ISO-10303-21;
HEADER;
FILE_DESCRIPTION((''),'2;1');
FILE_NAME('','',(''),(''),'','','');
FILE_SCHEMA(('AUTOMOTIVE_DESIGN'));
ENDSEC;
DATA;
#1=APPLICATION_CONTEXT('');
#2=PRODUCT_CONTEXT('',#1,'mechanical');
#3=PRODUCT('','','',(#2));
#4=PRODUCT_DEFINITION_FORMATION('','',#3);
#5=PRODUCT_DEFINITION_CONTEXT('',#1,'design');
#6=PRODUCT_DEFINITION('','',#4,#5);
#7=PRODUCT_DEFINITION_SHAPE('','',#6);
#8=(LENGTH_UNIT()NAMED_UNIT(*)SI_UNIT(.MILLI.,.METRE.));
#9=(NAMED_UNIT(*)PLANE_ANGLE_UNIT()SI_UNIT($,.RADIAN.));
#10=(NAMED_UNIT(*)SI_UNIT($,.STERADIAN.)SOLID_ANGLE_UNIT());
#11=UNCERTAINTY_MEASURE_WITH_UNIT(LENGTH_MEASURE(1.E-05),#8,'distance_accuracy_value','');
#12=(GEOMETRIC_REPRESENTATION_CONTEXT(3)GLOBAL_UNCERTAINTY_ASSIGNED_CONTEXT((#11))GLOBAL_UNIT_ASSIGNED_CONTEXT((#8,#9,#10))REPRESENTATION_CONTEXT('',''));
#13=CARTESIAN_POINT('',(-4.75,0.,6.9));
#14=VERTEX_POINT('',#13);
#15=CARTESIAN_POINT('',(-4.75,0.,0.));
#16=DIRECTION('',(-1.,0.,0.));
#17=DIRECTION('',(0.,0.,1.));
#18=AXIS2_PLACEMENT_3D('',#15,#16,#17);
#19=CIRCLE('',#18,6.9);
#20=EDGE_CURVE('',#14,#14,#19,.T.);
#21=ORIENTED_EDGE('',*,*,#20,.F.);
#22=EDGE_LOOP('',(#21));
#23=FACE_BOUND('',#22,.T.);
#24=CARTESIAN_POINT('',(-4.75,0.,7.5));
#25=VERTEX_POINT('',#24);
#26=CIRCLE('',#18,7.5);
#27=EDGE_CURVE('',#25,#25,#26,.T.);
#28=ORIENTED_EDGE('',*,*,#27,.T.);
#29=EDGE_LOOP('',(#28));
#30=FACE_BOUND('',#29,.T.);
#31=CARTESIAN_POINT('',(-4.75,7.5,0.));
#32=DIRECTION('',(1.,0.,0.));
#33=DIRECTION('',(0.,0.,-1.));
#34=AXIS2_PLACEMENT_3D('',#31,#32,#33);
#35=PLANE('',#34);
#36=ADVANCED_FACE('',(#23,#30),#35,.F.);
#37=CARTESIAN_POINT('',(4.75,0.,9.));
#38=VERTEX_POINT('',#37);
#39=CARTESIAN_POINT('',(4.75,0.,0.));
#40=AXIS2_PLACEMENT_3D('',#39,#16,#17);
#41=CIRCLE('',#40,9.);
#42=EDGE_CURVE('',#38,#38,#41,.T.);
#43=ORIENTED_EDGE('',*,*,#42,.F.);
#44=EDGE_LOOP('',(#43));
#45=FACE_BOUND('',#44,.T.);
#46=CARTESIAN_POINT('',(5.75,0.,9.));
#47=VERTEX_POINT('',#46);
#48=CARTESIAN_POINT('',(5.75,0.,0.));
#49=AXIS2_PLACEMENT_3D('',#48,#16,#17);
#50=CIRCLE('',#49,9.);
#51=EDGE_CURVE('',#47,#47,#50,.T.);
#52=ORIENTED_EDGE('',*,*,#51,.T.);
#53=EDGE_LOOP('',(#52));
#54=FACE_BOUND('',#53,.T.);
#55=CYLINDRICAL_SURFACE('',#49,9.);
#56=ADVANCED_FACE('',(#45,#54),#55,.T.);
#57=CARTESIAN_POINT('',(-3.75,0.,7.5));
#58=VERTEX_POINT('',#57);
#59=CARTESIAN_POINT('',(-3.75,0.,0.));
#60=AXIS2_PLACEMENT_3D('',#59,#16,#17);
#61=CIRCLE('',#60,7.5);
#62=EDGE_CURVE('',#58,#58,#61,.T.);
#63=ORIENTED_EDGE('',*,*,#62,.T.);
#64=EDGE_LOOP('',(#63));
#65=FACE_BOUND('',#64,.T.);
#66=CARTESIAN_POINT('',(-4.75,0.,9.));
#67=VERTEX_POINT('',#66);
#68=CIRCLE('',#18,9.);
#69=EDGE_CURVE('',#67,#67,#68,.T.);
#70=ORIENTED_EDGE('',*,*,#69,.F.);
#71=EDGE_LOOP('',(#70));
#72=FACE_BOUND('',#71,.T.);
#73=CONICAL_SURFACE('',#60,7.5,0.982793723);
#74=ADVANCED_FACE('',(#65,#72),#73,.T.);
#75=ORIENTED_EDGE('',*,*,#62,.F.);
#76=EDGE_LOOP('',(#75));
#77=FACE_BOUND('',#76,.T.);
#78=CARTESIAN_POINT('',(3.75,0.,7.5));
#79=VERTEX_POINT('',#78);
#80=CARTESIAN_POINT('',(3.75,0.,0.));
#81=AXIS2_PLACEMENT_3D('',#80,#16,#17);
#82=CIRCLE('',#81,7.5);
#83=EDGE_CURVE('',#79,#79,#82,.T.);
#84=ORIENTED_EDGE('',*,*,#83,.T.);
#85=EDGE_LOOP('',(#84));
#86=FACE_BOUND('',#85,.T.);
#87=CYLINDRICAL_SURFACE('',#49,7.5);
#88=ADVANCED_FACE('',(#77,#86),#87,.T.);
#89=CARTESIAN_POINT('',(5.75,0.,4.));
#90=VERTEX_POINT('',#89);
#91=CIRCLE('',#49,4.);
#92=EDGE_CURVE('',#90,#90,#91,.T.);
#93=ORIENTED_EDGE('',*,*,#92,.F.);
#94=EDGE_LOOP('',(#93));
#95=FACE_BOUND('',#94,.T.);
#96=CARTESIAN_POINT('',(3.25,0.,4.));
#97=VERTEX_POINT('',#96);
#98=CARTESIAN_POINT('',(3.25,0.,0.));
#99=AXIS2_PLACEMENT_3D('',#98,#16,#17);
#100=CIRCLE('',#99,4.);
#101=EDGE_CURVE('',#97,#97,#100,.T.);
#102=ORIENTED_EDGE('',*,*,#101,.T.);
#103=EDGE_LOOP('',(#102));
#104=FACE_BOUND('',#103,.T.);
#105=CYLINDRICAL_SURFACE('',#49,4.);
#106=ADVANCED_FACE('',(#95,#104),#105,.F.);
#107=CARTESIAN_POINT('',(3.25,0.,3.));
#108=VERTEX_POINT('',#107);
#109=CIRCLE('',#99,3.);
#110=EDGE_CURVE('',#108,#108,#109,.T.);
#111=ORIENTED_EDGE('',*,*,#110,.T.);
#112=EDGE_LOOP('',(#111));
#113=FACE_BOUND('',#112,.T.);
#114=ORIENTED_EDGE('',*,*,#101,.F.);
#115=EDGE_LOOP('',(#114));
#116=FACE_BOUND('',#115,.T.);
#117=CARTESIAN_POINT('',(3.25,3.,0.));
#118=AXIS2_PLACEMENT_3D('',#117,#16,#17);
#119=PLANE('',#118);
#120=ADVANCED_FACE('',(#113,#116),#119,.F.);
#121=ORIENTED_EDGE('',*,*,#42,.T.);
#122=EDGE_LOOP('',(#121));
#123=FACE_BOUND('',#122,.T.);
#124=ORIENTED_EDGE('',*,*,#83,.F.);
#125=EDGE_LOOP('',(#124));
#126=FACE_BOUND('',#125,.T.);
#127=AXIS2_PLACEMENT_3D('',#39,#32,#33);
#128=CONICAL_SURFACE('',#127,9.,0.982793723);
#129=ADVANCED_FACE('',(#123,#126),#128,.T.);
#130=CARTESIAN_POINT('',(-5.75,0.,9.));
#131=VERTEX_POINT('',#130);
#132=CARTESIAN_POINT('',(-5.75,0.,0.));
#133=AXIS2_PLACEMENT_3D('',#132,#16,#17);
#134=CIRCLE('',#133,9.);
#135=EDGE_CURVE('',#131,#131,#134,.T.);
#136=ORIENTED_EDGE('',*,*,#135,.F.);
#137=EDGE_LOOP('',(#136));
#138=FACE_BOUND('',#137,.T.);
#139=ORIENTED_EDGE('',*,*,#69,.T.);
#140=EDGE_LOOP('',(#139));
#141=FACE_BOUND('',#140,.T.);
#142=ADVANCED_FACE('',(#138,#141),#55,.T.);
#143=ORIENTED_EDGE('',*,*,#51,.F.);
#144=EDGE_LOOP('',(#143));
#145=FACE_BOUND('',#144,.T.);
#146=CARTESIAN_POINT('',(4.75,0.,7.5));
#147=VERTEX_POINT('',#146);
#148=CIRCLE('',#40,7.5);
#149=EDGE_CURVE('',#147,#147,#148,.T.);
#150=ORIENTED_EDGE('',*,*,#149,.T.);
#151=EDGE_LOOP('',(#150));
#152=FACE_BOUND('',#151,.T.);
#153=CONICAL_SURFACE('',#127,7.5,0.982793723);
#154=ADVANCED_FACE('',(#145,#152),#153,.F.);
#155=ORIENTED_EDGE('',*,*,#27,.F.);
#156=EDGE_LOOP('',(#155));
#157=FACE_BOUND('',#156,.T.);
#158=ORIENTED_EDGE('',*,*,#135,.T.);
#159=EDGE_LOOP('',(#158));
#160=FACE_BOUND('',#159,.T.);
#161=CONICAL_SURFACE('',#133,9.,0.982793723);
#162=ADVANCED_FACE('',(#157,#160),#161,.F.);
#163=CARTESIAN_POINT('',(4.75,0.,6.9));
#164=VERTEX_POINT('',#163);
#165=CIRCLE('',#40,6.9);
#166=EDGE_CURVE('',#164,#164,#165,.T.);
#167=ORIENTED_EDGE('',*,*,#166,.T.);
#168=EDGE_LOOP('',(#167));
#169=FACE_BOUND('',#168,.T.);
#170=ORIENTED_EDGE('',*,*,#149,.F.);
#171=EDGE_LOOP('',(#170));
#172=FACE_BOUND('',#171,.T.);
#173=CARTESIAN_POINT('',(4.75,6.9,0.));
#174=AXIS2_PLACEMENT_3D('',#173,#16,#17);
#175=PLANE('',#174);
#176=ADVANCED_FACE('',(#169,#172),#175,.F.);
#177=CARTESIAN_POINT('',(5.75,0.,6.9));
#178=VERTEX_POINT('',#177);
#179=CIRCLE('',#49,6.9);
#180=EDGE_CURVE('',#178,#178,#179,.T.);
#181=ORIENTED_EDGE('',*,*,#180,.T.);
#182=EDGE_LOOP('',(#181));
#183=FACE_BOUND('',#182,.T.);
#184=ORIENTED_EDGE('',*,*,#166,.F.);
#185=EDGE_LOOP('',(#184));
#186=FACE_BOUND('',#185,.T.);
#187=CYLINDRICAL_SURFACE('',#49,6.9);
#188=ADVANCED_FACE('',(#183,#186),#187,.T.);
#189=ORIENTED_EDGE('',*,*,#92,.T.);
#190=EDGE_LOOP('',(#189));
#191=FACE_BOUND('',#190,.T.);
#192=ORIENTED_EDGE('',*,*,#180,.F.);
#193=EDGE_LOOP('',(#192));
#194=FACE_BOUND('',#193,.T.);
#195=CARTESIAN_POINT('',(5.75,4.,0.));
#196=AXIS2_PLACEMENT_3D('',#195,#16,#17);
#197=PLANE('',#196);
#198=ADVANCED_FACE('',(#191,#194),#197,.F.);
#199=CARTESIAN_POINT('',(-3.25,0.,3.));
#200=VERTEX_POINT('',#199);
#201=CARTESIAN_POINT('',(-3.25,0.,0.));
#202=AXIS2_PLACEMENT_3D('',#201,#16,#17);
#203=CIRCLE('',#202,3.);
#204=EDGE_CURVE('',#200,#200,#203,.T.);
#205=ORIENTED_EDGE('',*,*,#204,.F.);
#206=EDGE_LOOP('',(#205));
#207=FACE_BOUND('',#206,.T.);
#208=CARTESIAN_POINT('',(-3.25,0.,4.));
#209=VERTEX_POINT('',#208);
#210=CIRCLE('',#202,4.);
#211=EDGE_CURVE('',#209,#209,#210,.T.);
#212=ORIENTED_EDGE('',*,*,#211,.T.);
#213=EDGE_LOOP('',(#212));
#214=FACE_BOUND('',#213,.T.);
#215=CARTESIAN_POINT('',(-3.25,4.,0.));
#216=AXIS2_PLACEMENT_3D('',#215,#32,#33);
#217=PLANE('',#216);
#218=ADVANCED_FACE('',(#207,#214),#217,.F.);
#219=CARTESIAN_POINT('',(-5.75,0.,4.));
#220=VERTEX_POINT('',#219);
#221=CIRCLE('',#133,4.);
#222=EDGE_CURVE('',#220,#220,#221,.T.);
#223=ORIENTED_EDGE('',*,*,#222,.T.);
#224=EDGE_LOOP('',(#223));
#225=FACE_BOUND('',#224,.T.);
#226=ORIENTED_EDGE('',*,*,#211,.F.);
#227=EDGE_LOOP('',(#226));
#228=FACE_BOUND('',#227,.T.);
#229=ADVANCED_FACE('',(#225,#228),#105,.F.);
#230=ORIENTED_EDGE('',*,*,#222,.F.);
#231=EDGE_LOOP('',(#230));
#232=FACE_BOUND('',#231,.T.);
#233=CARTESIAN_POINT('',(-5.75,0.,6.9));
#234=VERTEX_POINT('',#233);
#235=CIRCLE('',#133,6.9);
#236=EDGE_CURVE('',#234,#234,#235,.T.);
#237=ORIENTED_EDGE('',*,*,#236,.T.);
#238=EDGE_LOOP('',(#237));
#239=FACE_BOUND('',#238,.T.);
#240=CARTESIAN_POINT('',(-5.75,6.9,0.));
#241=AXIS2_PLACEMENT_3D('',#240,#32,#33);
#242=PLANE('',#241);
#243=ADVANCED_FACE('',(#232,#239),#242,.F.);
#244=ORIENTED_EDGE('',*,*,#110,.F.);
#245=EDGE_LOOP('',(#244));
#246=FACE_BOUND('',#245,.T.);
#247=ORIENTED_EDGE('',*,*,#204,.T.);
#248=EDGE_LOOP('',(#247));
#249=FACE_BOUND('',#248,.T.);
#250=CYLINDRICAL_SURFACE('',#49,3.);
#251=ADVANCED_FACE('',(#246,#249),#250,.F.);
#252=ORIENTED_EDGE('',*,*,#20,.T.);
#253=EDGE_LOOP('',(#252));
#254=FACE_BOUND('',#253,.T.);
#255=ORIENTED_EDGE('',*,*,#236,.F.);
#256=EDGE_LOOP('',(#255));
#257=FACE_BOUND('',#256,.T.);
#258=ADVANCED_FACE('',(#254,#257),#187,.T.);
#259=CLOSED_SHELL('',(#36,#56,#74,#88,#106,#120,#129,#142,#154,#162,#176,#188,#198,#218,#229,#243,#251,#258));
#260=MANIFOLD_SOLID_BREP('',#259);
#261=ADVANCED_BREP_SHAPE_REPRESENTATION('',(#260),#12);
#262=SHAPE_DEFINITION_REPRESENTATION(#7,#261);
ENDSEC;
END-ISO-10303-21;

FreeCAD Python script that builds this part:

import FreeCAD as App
import Part
import Sketcher
Q = App.Units.Quantity

doc = App.newDocument("Part")
body = doc.addObject("PartDesign::Body", "Body")

# Sketch on XY plane
sketch1 = doc.addObject("Sketcher::SketchObject", "Sketch")
body.addObject(sketch1)
sketch1.AttachmentSupport = (doc.XY_Plane, [""])
sketch1.MapMode = "FlatFace"
sketch1.addGeometry([
    Part.LineSegment(App.Vector(-5.8, 9, 0), App.Vector(-4.8, 7.5, 0)),  # 0
    Part.LineSegment(App.Vector(-4.8, 7.5, 0), App.Vector(-4.8, 6.9, 0)),  # 1
    Part.LineSegment(App.Vector(-4.8, 6.9, 0), App.Vector(-5.8, 6.9, 0)),  # 2
    Part.LineSegment(App.Vector(-5.8, 6.9, 0), App.Vector(-5.8, 4, 0)),  # 3
    Part.LineSegment(App.Vector(-5.8, 4, 0), App.Vector(-3.2, 4, 0)),  # 4
    Part.LineSegment(App.Vector(-3.2, 4, 0), App.Vector(-3.2, 3, 0)),  # 5
    Part.LineSegment(App.Vector(-3.2, 3, 0), App.Vector(3.2, 3, 0)),  # 6
    Part.LineSegment(App.Vector(3.2, 3, 0), App.Vector(3.2, 4, 0)),  # 7
    Part.LineSegment(App.Vector(3.2, 4, 0), App.Vector(5.8, 4, 0)),  # 8
    Part.LineSegment(App.Vector(5.8, 4, 0), App.Vector(5.8, 6.9, 0)),  # 9
    Part.LineSegment(App.Vector(5.8, 6.9, 0), App.Vector(4.8, 6.9, 0)),  # 10
    Part.LineSegment(App.Vector(4.8, 6.9, 0), App.Vector(4.8, 7.5, 0)),  # 11
    Part.LineSegment(App.Vector(4.8, 7.5, 0), App.Vector(5.8, 9, 0)),  # 12
    Part.LineSegment(App.Vector(5.8, 9, 0), App.Vector(4.8, 9, 0)),  # 13
    Part.LineSegment(App.Vector(4.8, 9, 0), App.Vector(3.8, 7.5, 0)),  # 14
    Part.LineSegment(App.Vector(3.8, 7.5, 0), App.Vector(-3.8, 7.5, 0)),  # 15
    Part.LineSegment(App.Vector(-3.8, 7.5, 0), App.Vector(-4.8, 9, 0)),  # 16
    Part.LineSegment(App.Vector(-4.8, 9, 0), App.Vector(-5.8, 9, 0)),  # 17
], False)
sketch1.addConstraint([
    Sketcher.Constraint("Coincident", 0, 2, 1, 1),
    Sketcher.Constraint("Coincident", 1, 2, 2, 1),
    Sketcher.Constraint("Coincident", 2, 2, 3, 1),
    Sketcher.Constraint("Coincident", 3, 2, 4, 1),
    Sketcher.Constraint("Coincident", 4, 2, 5, 1),
    Sketcher.Constraint("Coincident", 5, 2, 6, 1),
    Sketcher.Constraint("Coincident", 6, 2, 7, 1),
    Sketcher.Constraint("Coincident", 7, 2, 8, 1),
    Sketcher.Constraint("Coincident", 8, 2, 9, 1),
    Sketcher.Constraint("Coincident", 9, 2, 10, 1),
    Sketcher.Constraint("Coincident", 10, 2, 11, 1),
    Sketcher.Constraint("Coincident", 11, 2, 12, 1),
    Sketcher.Constraint("Coincident", 12, 2, 13, 1),
    Sketcher.Constraint("Coincident", 13, 2, 14, 1),
    Sketcher.Constraint("Coincident", 14, 2, 15, 1),
    Sketcher.Constraint("Coincident", 15, 2, 16, 1),
    Sketcher.Constraint("Coincident", 16, 2, 17, 1),
    Sketcher.Constraint("Coincident", 17, 2, 0, 1),
    Sketcher.Constraint("Vertical", 1),
    Sketcher.Constraint("Horizontal", 2),
    Sketcher.Constraint("Vertical", 3),
    Sketcher.Constraint("Horizontal", 4),
    Sketcher.Constraint("Vertical", 5),
    Sketcher.Constraint("Horizontal", 6),
    Sketcher.Constraint("Vertical", 7),
    Sketcher.Constraint("Horizontal", 8),
    Sketcher.Constraint("Vertical", 9),
    Sketcher.Constraint("Horizontal", 10),
    Sketcher.Constraint("Vertical", 11),
    Sketcher.Constraint("Horizontal", 13),
    Sketcher.Constraint("Horizontal", 15),
    Sketcher.Constraint("Horizontal", 17),
    Sketcher.Constraint("Symmetric", 4, 2, 7, 2, -2),
    Sketcher.Constraint("Symmetric", 2, 2, 9, 2, -2),
    Sketcher.Constraint("Symmetric", 0, 2, 11, 2, -2),
    Sketcher.Constraint("Symmetric", 13, 2, 16, 2, -2),
    Sketcher.Constraint("Parallel", 12, 14),
    Sketcher.Constraint("Parallel", 0, 16),
    Sketcher.Constraint("Horizontal", 11, 2, 14, 2),
    Sketcher.Constraint("Vertical", 9, 2, 12, 2),
    Sketcher.Constraint("Vertical", 11, 2, 13, 2),
    Sketcher.Constraint("Vertical", 3, 2, 17, 2),
    Sketcher.Constraint("Equal", 17, 5),
    Sketcher.Constraint("DistanceX", 2, 2, 2, 1, Q("1 mm")),
    Sketcher.Constraint("DistanceX", 4, 1, 4, 2, Q("2.5 mm")),
    Sketcher.Constraint("DistanceX", 6, 1, 6, 2, Q("6.5 mm")),
    Sketcher.Constraint("DistanceY", 1, 2, 1, 1, Q("0.6 mm")),
    Sketcher.Constraint("DistanceY", 3, 2, 3, 1, Q("2.9 mm")),
    Sketcher.Constraint("DistanceY", -1, 1, 3, 2, Q("4 mm")),
    Sketcher.Constraint("DistanceY", -1, 1, 12, 2, Q("9 mm")),
])
revolution = doc.addObject("PartDesign::Revolution", "Revolution")
body.addObject(revolution)
revolution.Profile = sketch1
revolution.ReferenceAxis = (sketch1, ["H_Axis"])
revolution.Angle = 360

doc.recompute()
